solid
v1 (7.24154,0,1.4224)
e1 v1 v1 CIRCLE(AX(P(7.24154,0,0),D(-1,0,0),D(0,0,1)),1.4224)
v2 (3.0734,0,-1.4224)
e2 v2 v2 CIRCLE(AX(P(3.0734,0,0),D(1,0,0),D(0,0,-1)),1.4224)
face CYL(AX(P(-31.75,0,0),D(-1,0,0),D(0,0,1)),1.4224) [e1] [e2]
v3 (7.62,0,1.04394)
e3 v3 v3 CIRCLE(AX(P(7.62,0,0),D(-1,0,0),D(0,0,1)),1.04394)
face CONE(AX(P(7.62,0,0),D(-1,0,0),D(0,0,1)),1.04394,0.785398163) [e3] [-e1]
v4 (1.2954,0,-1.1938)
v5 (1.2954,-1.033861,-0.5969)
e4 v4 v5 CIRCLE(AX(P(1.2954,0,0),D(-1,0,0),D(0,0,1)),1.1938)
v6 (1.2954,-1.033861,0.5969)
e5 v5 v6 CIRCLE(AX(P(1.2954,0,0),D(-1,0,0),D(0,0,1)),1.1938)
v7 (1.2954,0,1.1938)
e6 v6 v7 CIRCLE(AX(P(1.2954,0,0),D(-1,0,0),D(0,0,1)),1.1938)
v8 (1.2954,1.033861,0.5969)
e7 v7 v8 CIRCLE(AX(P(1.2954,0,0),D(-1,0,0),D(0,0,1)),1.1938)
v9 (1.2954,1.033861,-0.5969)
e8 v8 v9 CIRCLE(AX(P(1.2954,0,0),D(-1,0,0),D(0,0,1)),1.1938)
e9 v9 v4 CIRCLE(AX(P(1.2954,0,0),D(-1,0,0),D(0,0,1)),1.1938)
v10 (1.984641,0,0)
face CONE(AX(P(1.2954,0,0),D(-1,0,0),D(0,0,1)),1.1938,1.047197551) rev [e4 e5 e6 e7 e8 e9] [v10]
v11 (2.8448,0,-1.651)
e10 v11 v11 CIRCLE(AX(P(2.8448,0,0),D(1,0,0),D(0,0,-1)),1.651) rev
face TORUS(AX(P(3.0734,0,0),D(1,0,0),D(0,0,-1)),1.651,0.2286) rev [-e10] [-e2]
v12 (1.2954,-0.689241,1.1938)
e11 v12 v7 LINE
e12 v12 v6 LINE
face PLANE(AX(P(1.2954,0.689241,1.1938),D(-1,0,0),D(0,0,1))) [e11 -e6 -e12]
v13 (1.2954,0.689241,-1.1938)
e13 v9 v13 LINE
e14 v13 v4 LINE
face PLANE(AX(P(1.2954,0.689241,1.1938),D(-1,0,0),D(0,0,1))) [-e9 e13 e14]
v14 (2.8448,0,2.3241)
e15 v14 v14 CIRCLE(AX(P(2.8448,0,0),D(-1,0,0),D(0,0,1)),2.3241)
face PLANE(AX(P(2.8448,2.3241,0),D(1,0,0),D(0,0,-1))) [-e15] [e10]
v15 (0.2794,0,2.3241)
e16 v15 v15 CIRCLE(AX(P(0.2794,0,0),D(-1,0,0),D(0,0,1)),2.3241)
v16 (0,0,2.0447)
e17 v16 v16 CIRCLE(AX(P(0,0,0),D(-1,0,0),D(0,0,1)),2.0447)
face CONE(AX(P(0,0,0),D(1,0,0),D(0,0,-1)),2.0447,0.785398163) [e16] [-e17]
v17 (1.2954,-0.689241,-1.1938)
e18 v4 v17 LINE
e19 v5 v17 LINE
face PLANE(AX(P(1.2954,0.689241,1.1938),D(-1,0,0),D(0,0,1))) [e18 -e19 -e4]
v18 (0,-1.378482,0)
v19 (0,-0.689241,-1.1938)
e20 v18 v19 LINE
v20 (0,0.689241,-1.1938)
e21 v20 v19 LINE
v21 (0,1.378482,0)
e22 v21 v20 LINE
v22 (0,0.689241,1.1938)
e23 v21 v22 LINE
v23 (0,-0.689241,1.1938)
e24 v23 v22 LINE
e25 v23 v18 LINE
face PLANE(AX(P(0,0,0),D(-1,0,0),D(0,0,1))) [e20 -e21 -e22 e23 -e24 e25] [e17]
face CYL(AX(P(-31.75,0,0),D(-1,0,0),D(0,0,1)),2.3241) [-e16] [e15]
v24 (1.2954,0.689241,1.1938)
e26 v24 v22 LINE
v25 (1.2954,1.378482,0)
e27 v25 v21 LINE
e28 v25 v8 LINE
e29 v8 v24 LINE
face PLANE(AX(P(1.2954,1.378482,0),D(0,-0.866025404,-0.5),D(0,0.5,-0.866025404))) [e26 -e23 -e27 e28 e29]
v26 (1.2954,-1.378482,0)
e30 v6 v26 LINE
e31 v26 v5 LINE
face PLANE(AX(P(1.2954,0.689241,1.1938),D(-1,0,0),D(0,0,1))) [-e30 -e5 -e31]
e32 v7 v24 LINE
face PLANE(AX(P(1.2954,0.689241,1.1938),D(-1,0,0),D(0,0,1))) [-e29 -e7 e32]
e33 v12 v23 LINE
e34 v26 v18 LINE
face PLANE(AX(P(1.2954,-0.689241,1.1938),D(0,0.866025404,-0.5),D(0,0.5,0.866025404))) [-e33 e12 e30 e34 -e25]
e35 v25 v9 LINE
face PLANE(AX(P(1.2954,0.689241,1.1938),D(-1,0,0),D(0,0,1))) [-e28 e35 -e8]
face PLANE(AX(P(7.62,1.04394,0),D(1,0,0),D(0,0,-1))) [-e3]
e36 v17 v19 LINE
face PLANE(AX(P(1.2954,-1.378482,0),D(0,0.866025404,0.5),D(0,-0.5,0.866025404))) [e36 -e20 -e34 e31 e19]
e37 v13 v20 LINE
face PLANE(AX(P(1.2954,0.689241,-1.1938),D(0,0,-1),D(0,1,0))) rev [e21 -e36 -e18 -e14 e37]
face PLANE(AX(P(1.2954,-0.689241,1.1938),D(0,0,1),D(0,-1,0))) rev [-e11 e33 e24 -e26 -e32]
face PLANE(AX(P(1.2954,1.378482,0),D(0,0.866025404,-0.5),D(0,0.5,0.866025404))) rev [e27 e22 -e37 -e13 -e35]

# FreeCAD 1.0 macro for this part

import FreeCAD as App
import Part
import Sketcher
from FreeCAD import Vector
Q = App.Units.Quantity


def edges_at(feature, points):
    """Names of the edges that pass closest to the given points."""
    edges = feature.Shape.Edges
    near = lambda p: min(range(len(edges)), key=lambda i: edges[i].distToShape(Part.Vertex(*p))[0])
    return sorted({f"Edge{near(p) + 1}" for p in points})

doc = App.newDocument("Part")
params = doc.addObject("Spreadsheet::Sheet", "Params")
for row, (alias, value) in enumerate([
    ("sketch1_width", "0.3 in"),
    ("sketch1_width2", "0.101 in"),
    ("revolution_angle", "360 deg"),
    ("fillet_radius", "0.009 in"),
    ("sketch2_width", "0.051 in"),
    ("sketch2_height", "0.047 in"),
    ("groove_angle", "360 deg"),
    ("pocket1_length", "0.051 in"),
], start=1):
    params.set(f"A{row}", alias)
    params.set(f"B{row}", "=" + value)
    params.setAlias(f"B{row}", alias)

body = doc.addObject("PartDesign::Body", "Body")

# Sketch on XY plane
sketch1 = body.newObject("Sketcher::SketchObject", "Sketch")
sketch1.AttachmentSupport = (doc.getObject("XY_Plane"), [""])
sketch1.MapMode = "FlatFace"
sketch1.addGeometry([
    Part.LineSegment(Vector(0, 2.04, 0), Vector(0, 0, 0)),  # 0
    Part.LineSegment(Vector(0, 0, 0), Vector(7.62, 0, 0)),  # 1
    Part.LineSegment(Vector(7.62, 0, 0), Vector(7.62, 1.04, 0)),  # 2
    Part.LineSegment(Vector(7.62, 1.04, 0), Vector(7.24, 1.42, 0)),  # 3
    Part.LineSegment(Vector(7.24, 1.42, 0), Vector(2.84, 1.42, 0)),  # 4
    Part.LineSegment(Vector(2.84, 1.42, 0), Vector(2.84, 2.32, 0)),  # 5
    Part.LineSegment(Vector(2.84, 2.32, 0), Vector(0.28, 2.32, 0)),  # 6
    Part.LineSegment(Vector(0.28, 2.32, 0), Vector(0, 2.04, 0)),  # 7
], False)
sketch1.addConstraint([
    Sketcher.Constraint("Coincident", 0, 2, 1, 1),
    Sketcher.Constraint("Coincident", 1, 2, 2, 1),
    Sketcher.Constraint("Coincident", 2, 2, 3, 1),
    Sketcher.Constraint("Coincident", 3, 2, 4, 1),
    Sketcher.Constraint("Coincident", 4, 2, 5, 1),
    Sketcher.Constraint("Coincident", 5, 2, 6, 1),
    Sketcher.Constraint("Coincident", 6, 2, 7, 1),
    Sketcher.Constraint("Coincident", 7, 2, 0, 1),
    Sketcher.Constraint("Vertical", 0),
    Sketcher.Constraint("Horizontal", 1),
    Sketcher.Constraint("Vertical", 2),
    Sketcher.Constraint("Horizontal", 4),
    Sketcher.Constraint("Vertical", 5),
    Sketcher.Constraint("Horizontal", 6),
    Sketcher.Constraint("Coincident", 0, 2, -1, 1),
    Sketcher.Constraint("Perpendicular", 3, 7),
    Sketcher.Constraint("DistanceX", 1, 1, 1, 2, Q("0.3 in")),
    Sketcher.Constraint("Angle", 3, Q("135 deg")),
    Sketcher.Constraint("DistanceX", 6, 2, 6, 1, Q("0.101 in")),
    Sketcher.Constraint("DistanceX", 4, 2, 4, 1, Q("0.1731 in")),
    Sketcher.Constraint("DistanceY", 0, 2, 0, 1, Q("0.0805 in")),
    Sketcher.Constraint("DistanceY", 2, 1, 2, 2, Q("0.0411 in")),
    Sketcher.Constraint("DistanceY", 5, 1, 5, 2, Q("0.0355 in")),
])
sketch1.setExpression("Constraints[16]", "Params.sketch1_width")
sketch1.setExpression("Constraints[18]", "Params.sketch1_width2")
revolution = body.newObject("PartDesign::Revolution", "Revolution")
revolution.Profile = sketch1
revolution.ReferenceAxis = (sketch1, ["H_Axis"])
revolution.setExpression("Angle", "Params.revolution_angle")
doc.recompute()

fillet = body.newObject("PartDesign::Fillet", "Fillet")
fillet.Base = (revolution, edges_at(revolution, [(2.845, -1.422, 0)]))
fillet.setExpression("Radius", "Params.fillet_radius")

# Sketch on XY plane
sketch2 = body.newObject("Sketcher::SketchObject", "Sketch001")
sketch2.AttachmentSupport = (doc.getObject("XY_Plane"), [""])
sketch2.MapMode = "FlatFace"
sketch2.addGeometry([
    Part.LineSegment(Vector(1.3, 1.2, 0), Vector(0, 1.2, 0)),
    Part.LineSegment(Vector(0, 1.2, 0), Vector(0, 0, 0)),
    Part.LineSegment(Vector(0, 0, 0), Vector(2, 0, 0)),
    Part.LineSegment(Vector(2, 0, 0), Vector(1.3, 1.2, 0)),
], False)
sketch2.addConstraint([
    Sketcher.Constraint("Coincident", 0, 2, 1, 1),
    Sketcher.Constraint("Coincident", 1, 2, 2, 1),
    Sketcher.Constraint("Coincident", 2, 2, 3, 1),
    Sketcher.Constraint("Coincident", 3, 2, 0, 1),
    Sketcher.Constraint("Horizontal", 0),
    Sketcher.Constraint("Vertical", 1),
    Sketcher.Constraint("Horizontal", 2),
    Sketcher.Constraint("Coincident", 1, 2, -1, 1),
    Sketcher.Constraint("Angle", 3, Q("120 deg")),
    Sketcher.Constraint("DistanceX", 0, 2, 0, 1, Q("0.051 in")),
    Sketcher.Constraint("DistanceY", 1, 2, 1, 1, Q("0.047 in")),
])
sketch2.setExpression("Constraints[9]", "Params.sketch2_width")
sketch2.setExpression("Constraints[10]", "Params.sketch2_height")
groove = body.newObject("PartDesign::Groove", "Groove")
groove.Profile = sketch2
groove.ReferenceAxis = (sketch2, ["H_Axis"])
groove.setExpression("Angle", "Params.groove_angle")

# Sketch on YZ plane
sketch3 = body.newObject("Sketcher::SketchObject", "Sketch002")
sketch3.AttachmentSupport = (doc.getObject("YZ_Plane"), [""])
sketch3.MapMode = "FlatFace"
sketch3.addGeometry([
    Part.LineSegment(Vector(1.4, 0, 0), Vector(0.7, -1.2, 0)),  # 0
    Part.LineSegment(Vector(0.7, -1.2, 0), Vector(-0.7, -1.2, 0)),  # 1
    Part.LineSegment(Vector(-0.7, -1.2, 0), Vector(-1.4, 0, 0)),  # 2
    Part.LineSegment(Vector(-1.4, 0, 0), Vector(-0.7, 1.2, 0)),  # 3
    Part.LineSegment(Vector(-0.7, 1.2, 0), Vector(0.7, 1.2, 0)),  # 4
    Part.LineSegment(Vector(0.7, 1.2, 0), Vector(1.4, 0, 0)),  # 5
], False)
sketch3.addConstraint([
    Sketcher.Constraint("Coincident", 0, 2, 1, 1),
    Sketcher.Constraint("Coincident", 1, 2, 2, 1),
    Sketcher.Constraint("Coincident", 2, 2, 3, 1),
    Sketcher.Constraint("Coincident", 3, 2, 4, 1),
    Sketcher.Constraint("Coincident", 4, 2, 5, 1),
    Sketcher.Constraint("Coincident", 5, 2, 0, 1),
    Sketcher.Constraint("Horizontal", 1),
    Sketcher.Constraint("Horizontal", 4),
    Sketcher.Constraint("Symmetric", 0, 2, 3, 2, -1, 1),
    Sketcher.Constraint("Symmetric", 2, 2, 5, 2, -1, 1),
    Sketcher.Constraint("PointOnObject", 2, 2, -1),
    Sketcher.Constraint("Parallel", 2, 5),
    Sketcher.Constraint("Vertical", 1, 2, 3, 2),
    Sketcher.Constraint("Angle", 0, Q("-120 deg")),
    Sketcher.Constraint("DistanceY", 0, 2, -1, 1, Q("0.047 in")),
    Sketcher.Constraint("DistanceX", 1, 2, 1, 1, Q("1.378482 mm")),
])
pocket1 = body.newObject("PartDesign::Pocket", "Pocket")
pocket1.Profile = sketch3
pocket1.setExpression("Length", "Params.pocket1_length")
pocket1.Reversed = True

doc.recompute()
